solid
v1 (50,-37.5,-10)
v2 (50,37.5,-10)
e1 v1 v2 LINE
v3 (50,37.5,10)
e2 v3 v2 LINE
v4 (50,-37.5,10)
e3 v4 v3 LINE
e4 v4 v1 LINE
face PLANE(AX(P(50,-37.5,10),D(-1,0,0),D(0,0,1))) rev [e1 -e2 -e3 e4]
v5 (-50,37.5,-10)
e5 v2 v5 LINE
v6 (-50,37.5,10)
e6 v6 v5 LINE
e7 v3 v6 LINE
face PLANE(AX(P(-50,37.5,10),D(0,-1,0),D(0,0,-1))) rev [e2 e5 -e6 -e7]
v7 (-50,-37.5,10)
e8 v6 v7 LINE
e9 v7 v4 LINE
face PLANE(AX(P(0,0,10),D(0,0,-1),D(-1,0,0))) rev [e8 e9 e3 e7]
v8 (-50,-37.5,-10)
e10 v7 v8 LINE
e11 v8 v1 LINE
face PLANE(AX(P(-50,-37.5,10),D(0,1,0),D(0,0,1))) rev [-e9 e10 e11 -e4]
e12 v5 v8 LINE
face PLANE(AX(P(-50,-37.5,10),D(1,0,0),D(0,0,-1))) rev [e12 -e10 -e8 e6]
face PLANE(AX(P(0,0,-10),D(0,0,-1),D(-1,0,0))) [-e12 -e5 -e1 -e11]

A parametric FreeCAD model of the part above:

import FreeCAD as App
import Part
import Sketcher
from FreeCAD import Vector


def add_polygon(sketch, points):
    """Adds a closed chain of lines whose ends are joined by coincident constraints."""
    first, n = sketch.GeometryCount, len(points)
    for a, b in zip(points, points[1:] + points[:1]):
        sketch.addGeometry(Part.LineSegment(App.Vector(*a, 0), App.Vector(*b, 0)), False)
    for i in range(n):
        sketch.addConstraint(Sketcher.Constraint("Coincident", first + i, 2, first + (i + 1) % n, 1))

doc = App.newDocument("Part")
body = doc.addObject("PartDesign::Body", "Body")

# Sketch on XY plane
sketch1 = body.newObject("Sketcher::SketchObject", "Sketch")
sketch1.AttachmentSupport = (doc.getObject("XY_Plane"), [""])
sketch1.MapMode = "FlatFace"
add_polygon(sketch1, [(-50, 38), (-50, -38), (50, -38), (50, 38)])  # lines 0-3
sketch1.addConstraint([
    Sketcher.Constraint("Vertical", 0),
    Sketcher.Constraint("Horizontal", 1),
    Sketcher.Constraint("Vertical", 2),
    Sketcher.Constraint("Horizontal", 3),
    Sketcher.Constraint("Symmetric", 0, 2, 2, 2, -1, 1),
    Sketcher.Constraint("DistanceX", 1, 1, 1, 2, 100.0),
    Sketcher.Constraint("DistanceY", 0, 2, 0, 1, 75.0),
])
pad1 = body.newObject("PartDesign::Pad", "Pad")
pad1.Profile = sketch1
pad1.Length = 20
pad1.Midplane = True

doc.recompute()
